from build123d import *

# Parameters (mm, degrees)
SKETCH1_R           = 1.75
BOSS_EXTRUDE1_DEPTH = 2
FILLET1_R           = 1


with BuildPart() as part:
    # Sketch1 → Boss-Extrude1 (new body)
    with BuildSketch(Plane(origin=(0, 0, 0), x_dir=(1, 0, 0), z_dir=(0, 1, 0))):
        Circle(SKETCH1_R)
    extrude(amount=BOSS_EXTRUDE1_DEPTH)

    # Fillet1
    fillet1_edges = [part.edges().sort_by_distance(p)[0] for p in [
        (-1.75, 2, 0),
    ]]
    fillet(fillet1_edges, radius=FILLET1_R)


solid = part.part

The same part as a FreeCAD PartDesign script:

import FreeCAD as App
import Part
import Sketcher


def edges_at(feature, points):
    """Names of the edges that pass closest to the given points."""
    edges = feature.Shape.Edges
    near = lambda p: min(range(len(edges)), key=lambda i: edges[i].distToShape(Part.Vertex(*p))[0])
    return sorted({f"Edge{near(p) + 1}" for p in points})

doc = App.newDocument("Part")
params = doc.addObject("Spreadsheet::Sheet", "Params")
for row, (alias, value) in enumerate([
    ("sketch1_diameter", "3.5 mm"),
    ("pad1_length", "2 mm"),
    ("fillet_radius", "1 mm"),
], start=1):
    params.set(f"A{row}", alias)
    params.set(f"B{row}", "=" + value)
    params.setAlias(f"B{row}", alias)

body = doc.addObject("PartDesign::Body", "Body")

# Sketch on XZ plane
sketch1 = body.newObject("Sketcher::SketchObject", "Sketch")
sketch1.AttachmentSupport = (doc.getObject("XZ_Plane"), [""])
sketch1.MapMode = "FlatFace"
sketch1.addGeometry(Part.Circle(App.Vector(0, 0, 0), App.Vector(0, 0, 1), 1.8), False)
sketch1.addConstraint([
    Sketcher.Constraint("Coincident", 0, 3, -1, 1),
    Sketcher.Constraint("Diameter", 0, 3.5),
])
sketch1.setExpression("Constraints[1]", "Params.sketch1_diameter")
pad1 = body.newObject("PartDesign::Pad", "Pad")
pad1.Profile = sketch1
pad1.setExpression("Length", "Params.pad1_length")
pad1.Reversed = True
doc.recompute()

fillet = body.newObject("PartDesign::Fillet", "Fillet")
fillet.Base = (pad1, edges_at(pad1, [(-1.75, 2, 0)]))
fillet.setExpression("Radius", "Params.fillet_radius")

doc.recompute()
